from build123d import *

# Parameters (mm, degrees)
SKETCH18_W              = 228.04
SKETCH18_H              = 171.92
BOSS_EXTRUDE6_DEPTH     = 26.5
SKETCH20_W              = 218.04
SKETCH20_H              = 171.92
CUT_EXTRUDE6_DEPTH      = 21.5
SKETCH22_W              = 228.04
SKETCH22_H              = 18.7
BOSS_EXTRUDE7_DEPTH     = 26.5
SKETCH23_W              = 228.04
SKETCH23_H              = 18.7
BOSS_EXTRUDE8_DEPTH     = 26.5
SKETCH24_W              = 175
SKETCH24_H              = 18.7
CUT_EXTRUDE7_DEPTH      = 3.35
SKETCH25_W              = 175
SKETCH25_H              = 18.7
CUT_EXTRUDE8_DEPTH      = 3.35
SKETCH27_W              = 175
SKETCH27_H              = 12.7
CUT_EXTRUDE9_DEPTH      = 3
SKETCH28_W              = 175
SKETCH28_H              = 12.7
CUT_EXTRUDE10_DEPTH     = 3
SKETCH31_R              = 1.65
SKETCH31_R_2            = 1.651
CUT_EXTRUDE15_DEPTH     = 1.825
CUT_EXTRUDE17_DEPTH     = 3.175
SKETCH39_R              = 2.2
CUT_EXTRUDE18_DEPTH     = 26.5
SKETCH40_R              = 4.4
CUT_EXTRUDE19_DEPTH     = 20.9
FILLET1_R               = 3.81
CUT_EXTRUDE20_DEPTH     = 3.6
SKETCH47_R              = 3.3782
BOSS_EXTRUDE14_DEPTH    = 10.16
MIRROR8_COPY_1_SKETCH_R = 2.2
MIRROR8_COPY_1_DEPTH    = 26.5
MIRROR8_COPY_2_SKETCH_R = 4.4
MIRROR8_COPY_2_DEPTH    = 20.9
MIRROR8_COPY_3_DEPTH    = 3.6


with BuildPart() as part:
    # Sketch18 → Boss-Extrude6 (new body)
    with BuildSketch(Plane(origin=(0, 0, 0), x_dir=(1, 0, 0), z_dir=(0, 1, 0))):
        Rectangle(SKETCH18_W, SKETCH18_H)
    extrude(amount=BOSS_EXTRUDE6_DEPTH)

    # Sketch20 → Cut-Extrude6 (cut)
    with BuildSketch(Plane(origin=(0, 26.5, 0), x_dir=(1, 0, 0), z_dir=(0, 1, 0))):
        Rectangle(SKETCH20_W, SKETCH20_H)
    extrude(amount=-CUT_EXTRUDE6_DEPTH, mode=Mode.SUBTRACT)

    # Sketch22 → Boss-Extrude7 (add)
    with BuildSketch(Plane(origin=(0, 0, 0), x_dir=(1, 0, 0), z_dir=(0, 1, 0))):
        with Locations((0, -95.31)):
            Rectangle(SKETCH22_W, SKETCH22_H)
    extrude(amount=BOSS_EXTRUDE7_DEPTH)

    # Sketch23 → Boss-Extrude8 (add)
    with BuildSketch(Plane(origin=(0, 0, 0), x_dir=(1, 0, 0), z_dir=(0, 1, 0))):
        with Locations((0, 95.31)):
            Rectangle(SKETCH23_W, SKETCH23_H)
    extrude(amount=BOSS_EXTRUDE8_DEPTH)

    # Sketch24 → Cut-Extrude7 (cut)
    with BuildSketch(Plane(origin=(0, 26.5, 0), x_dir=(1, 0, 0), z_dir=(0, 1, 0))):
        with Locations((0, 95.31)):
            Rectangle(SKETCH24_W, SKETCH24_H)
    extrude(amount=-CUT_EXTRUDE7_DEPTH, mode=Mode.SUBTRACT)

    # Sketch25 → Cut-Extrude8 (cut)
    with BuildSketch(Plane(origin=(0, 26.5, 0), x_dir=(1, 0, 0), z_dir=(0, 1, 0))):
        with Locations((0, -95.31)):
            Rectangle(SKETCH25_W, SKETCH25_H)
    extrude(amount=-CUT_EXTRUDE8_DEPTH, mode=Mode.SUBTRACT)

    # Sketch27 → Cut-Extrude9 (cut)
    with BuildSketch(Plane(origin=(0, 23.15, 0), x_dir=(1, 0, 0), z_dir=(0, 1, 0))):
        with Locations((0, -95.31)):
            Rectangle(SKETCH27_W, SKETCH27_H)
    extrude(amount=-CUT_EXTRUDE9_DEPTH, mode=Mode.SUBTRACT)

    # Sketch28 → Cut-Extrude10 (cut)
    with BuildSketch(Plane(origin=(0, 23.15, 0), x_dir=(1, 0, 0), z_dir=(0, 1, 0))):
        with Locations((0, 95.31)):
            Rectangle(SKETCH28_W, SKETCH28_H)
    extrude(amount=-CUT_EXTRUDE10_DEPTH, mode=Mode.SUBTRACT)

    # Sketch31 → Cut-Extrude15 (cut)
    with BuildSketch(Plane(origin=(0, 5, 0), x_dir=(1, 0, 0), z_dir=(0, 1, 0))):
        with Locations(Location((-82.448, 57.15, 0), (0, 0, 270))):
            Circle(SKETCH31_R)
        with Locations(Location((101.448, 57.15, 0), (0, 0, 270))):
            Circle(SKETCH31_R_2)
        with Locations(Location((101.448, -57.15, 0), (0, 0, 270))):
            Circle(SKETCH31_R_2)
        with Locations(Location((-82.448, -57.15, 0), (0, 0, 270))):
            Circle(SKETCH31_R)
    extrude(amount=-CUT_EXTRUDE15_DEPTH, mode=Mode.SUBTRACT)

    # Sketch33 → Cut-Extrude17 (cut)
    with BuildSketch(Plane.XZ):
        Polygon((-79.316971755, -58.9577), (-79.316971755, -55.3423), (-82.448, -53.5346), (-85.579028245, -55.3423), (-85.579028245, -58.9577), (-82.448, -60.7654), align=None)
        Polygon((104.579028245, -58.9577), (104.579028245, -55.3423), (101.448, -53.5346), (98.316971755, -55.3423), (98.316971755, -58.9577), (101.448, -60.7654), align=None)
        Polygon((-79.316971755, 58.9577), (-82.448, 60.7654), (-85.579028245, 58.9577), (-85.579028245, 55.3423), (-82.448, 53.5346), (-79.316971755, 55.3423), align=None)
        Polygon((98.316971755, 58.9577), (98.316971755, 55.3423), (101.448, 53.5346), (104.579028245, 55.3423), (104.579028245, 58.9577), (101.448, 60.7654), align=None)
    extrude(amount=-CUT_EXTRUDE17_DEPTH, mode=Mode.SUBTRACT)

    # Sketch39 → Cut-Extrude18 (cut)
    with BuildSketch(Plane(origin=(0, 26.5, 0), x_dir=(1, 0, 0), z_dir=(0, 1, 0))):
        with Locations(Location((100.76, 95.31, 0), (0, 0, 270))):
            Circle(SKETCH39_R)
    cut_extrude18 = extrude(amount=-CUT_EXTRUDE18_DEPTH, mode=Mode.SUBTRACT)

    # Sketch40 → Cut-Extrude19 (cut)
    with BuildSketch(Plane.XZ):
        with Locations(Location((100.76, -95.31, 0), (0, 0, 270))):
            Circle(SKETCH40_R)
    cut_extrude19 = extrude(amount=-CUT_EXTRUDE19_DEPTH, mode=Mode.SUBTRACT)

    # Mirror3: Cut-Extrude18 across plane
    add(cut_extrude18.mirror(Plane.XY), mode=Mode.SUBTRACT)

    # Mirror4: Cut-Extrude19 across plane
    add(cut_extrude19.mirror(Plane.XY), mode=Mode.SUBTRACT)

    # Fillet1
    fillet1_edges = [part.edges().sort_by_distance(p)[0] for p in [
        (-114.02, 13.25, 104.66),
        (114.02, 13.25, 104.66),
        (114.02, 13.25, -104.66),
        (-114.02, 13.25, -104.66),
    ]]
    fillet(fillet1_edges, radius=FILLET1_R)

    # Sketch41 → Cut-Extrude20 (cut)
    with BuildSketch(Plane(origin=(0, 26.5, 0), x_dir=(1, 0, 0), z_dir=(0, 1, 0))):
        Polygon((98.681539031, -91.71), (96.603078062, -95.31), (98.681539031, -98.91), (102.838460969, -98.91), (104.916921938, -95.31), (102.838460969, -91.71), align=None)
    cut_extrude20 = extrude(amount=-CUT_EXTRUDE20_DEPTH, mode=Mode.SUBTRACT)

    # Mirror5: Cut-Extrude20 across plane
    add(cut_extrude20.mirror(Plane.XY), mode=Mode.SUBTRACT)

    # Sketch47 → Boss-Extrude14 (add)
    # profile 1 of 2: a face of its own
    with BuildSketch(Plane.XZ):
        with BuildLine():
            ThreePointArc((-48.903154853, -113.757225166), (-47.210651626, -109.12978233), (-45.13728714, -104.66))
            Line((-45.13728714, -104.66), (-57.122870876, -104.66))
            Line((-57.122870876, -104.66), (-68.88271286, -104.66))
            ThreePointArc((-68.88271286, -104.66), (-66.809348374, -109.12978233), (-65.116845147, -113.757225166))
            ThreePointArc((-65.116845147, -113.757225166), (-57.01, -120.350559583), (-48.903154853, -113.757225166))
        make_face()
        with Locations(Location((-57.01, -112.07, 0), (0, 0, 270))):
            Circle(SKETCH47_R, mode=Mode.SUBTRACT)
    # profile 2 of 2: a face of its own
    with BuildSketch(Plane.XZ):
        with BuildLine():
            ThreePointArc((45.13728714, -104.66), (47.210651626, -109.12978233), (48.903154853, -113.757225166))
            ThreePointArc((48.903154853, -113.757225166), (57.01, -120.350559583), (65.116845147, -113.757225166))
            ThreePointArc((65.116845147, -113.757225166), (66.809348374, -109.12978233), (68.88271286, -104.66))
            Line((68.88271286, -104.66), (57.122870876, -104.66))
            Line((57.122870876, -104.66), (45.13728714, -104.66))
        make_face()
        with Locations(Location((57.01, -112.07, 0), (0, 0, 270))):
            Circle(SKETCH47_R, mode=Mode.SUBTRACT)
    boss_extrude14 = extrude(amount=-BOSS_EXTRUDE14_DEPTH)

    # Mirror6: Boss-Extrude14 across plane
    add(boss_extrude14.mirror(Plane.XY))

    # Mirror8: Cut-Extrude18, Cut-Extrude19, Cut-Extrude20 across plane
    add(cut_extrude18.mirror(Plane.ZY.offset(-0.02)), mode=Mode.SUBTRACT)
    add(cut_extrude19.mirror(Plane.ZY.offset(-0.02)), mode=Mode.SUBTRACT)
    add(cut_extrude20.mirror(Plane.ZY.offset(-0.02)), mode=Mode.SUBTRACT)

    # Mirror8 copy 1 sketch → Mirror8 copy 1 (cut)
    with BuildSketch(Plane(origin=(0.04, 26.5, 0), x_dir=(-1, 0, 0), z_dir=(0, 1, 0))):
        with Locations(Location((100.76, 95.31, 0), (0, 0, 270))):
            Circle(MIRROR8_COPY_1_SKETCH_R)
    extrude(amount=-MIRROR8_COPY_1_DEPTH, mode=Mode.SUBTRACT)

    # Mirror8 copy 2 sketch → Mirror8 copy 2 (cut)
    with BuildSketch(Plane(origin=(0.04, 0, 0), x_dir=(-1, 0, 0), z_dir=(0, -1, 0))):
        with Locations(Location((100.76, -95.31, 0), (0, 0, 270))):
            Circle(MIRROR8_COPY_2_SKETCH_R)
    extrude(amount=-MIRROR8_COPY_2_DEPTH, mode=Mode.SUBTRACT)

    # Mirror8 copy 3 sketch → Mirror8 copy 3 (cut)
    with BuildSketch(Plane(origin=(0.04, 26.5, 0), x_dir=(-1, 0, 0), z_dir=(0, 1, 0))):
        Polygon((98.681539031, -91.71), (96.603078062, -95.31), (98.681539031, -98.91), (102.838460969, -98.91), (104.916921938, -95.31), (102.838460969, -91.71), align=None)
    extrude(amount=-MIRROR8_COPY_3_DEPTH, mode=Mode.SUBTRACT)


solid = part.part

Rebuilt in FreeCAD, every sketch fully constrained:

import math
import FreeCAD as App
import Part
import Sketcher
Q = App.Units.Quantity


def edges_at(feature, points):
    """Names of the edges that pass closest to the given points."""
    edges = feature.Shape.Edges
    near = lambda p: min(range(len(edges)), key=lambda i: edges[i].distToShape(Part.Vertex(*p))[0])
    return sorted({f"Edge{near(p) + 1}" for p in points})

doc = App.newDocument("Part")
params = doc.addObject("Spreadsheet::Sheet", "Params")
for row, (alias, value) in enumerate([
    ("sketch1_width", "228.04 mm"),
    ("sketch1_height", "171.92 mm"),
    ("pad1_length", "26.5 mm"),
    ("sketch2_width", "218.04 mm"),
    ("sketch2_height", "171.92 mm"),
    ("pocket1_length", "21.5 mm"),
    ("sketch3_height", "18.7 mm"),
    ("sketch3_width", "228.04 mm"),
    ("pad2_length", "26.5 mm"),
    ("sketch4_height", "18.7 mm"),
    ("sketch4_width", "228.04 mm"),
    ("pad3_length", "26.5 mm"),
    ("sketch5_width", "175 mm"),
    ("sketch5_height", "18.7 mm"),
    ("pocket2_length", "3.35 mm"),
    ("sketch6_width", "175 mm"),
    ("sketch6_height", "18.7 mm"),
    ("pocket3_length", "3.35 mm"),
    ("sketch7_width", "175 mm"),
    ("sketch7_height", "12.7 mm"),
    ("pocket4_length", "3 mm"),
    ("sketch8_width", "175 mm"),
    ("sketch8_height", "12.7 mm"),
    ("pocket5_length", "3 mm"),
    ("sketch9_diameter", "3.3 mm"),
    ("pocket6_length", "1.825 mm"),
    ("pocket7_length", "3.175 mm"),
    ("sketch11_diameter", "4.4 mm"),
    ("pocket8_length", "26.5 mm"),
    ("sketch12_diameter", "8.8 mm"),
    ("pocket9_length", "20.9 mm"),
    ("fillet_radius", "3.81 mm"),
    ("pocket10_length", "3.6 mm"),
    ("pad4_length", "10.16 mm"),
    ("sketch15_diameter", "4.4 mm"),
    ("pocket11_length", "26.5 mm"),
    ("sketch16_diameter", "8.8 mm"),
    ("pocket12_length", "20.9 mm"),
    ("pocket13_length", "3.6 mm"),
], start=1):
    params.set(f"A{row}", alias)
    params.set(f"B{row}", "=" + value)
    params.setAlias(f"B{row}", alias)

body = doc.addObject("PartDesign::Body", "Body")

# Sketch on XZ plane
sketch1 = body.newObject("Sketcher::SketchObject", "Sketch")
sketch1.AttachmentSupport = (doc.getObject("XZ_Plane"), [""])
sketch1.MapMode = "FlatFace"
sketch1.addGeometry([
    Part.LineSegment(App.Vector(-114, -86, 0), App.Vector(-114, 86, 0)),
    Part.LineSegment(App.Vector(-114, 86, 0), App.Vector(114, 86, 0)),
    Part.LineSegment(App.Vector(114, 86, 0), App.Vector(114, -86, 0)),
    Part.LineSegment(App.Vector(114, -86, 0), App.Vector(-114, -86, 0)),
], False)
sketch1.addConstraint([
    Sketcher.Constraint("Coincident", 0, 2, 1, 1),
    Sketcher.Constraint("Coincident", 1, 2, 2, 1),
    Sketcher.Constraint("Coincident", 2, 2, 3, 1),
    Sketcher.Constraint("Coincident", 3, 2, 0, 1),
    Sketcher.Constraint("Vertical", 0),
    Sketcher.Constraint("Horizontal", 1),
    Sketcher.Constraint("Vertical", 2),
    Sketcher.Constraint("Horizontal", 3),
    Sketcher.Constraint("Symmetric", 0, 2, 2, 2, -1, 1),
    Sketcher.Constraint("DistanceX", 1, 1, 1, 2, 228.04),
    Sketcher.Constraint("DistanceY", 0, 1, 0, 2, 171.92),
])
sketch1.setExpression("Constraints[9]", "Params.sketch1_width")
sketch1.setExpression("Constraints[10]", "Params.sketch1_height")
pad1 = body.newObject("PartDesign::Pad", "Pad")
pad1.Profile = sketch1
pad1.setExpression("Length", "Params.pad1_length")
pad1.Reversed = True

# Sketch on XZ plane
sketch2 = body.newObject("Sketcher::SketchObject", "Sketch001")
sketch2.AttachmentSupport = (doc.getObject("XZ_Plane"), [""])
sketch2.MapMode = "FlatFace"
sketch2.AttachmentOffset = App.Placement(App.Vector(0, 0, -26.5), App.Rotation())
sketch2.addGeometry([
    Part.LineSegment(App.Vector(-109, -86, 0), App.Vector(-109, 86, 0)),
    Part.LineSegment(App.Vector(-109, 86, 0), App.Vector(109, 86, 0)),
    Part.LineSegment(App.Vector(109, 86, 0), App.Vector(109, -86, 0)),
    Part.LineSegment(App.Vector(109, -86, 0), App.Vector(-109, -86, 0)),
], False)
sketch2.addConstraint([
    Sketcher.Constraint("Coincident", 0, 2, 1, 1),
    Sketcher.Constraint("Coincident", 1, 2, 2, 1),
    Sketcher.Constraint("Coincident", 2, 2, 3, 1),
    Sketcher.Constraint("Coincident", 3, 2, 0, 1),
    Sketcher.Constraint("Vertical", 0),
    Sketcher.Constraint("Horizontal", 1),
    Sketcher.Constraint("Vertical", 2),
    Sketcher.Constraint("Horizontal", 3),
    Sketcher.Constraint("Symmetric", 0, 2, 2, 2, -1, 1),
    Sketcher.Constraint("DistanceX", 1, 1, 1, 2, 218.04),
    Sketcher.Constraint("DistanceY", 0, 1, 0, 2, 171.92),
])
sketch2.setExpression("Constraints[9]", "Params.sketch2_width")
sketch2.setExpression("Constraints[10]", "Params.sketch2_height")
pocket1 = body.newObject("PartDesign::Pocket", "Pocket")
pocket1.Profile = sketch2
pocket1.setExpression("Length", "Params.pocket1_length")
pocket1.Reversed = True

# Sketch on XZ plane
sketch3 = body.newObject("Sketcher::SketchObject", "Sketch002")
sketch3.AttachmentSupport = (doc.getObject("XZ_Plane"), [""])
sketch3.MapMode = "FlatFace"
sketch3.addGeometry([
    Part.LineSegment(App.Vector(-114, 86, 0), App.Vector(-114, 105, 0)),
    Part.LineSegment(App.Vector(-114, 105, 0), App.Vector(114, 105, 0)),
    Part.LineSegment(App.Vector(114, 105, 0), App.Vector(114, 86, 0)),
    Part.LineSegment(App.Vector(114, 86, 0), App.Vector(-114, 86, 0)),
], False)
sketch3.addConstraint([
    Sketcher.Constraint("Coincident", 0, 2, 1, 1),
    Sketcher.Constraint("Coincident", 1, 2, 2, 1),
    Sketcher.Constraint("Coincident", 2, 2, 3, 1),
    Sketcher.Constraint("Coincident", 3, 2, 0, 1),
    Sketcher.Constraint("Vertical", 0),
    Sketcher.Constraint("Horizontal", 1),
    Sketcher.Constraint("Vertical", 2),
    Sketcher.Constraint("Horizontal", 3),
    Sketcher.Constraint("DistanceY", 0, 1, 0, 2, 18.7),
    Sketcher.Constraint("DistanceX", 1, 1, 1, 2, 228.04),
    Sketcher.Constraint("DistanceX", 0, 2, -1, 1, 114.02),
    Sketcher.Constraint("DistanceY", -1, 1, 0, 2, 104.66),
])
sketch3.setExpression("Constraints[8]", "Params.sketch3_height")
sketch3.setExpression("Constraints[9]", "Params.sketch3_width")
pad2 = body.newObject("PartDesign::Pad", "Pad001")
pad2.Profile = sketch3
pad2.setExpression("Length", "Params.pad2_length")
pad2.Reversed = True

# Sketch on XZ plane
sketch4 = body.newObject("Sketcher::SketchObject", "Sketch003")
sketch4.AttachmentSupport = (doc.getObject("XZ_Plane"), [""])
sketch4.MapMode = "FlatFace"
sketch4.addGeometry([
    Part.LineSegment(App.Vector(-114, -105, 0), App.Vector(-114, -86, 0)),
    Part.LineSegment(App.Vector(-114, -86, 0), App.Vector(114, -86, 0)),
    Part.LineSegment(App.Vector(114, -86, 0), App.Vector(114, -105, 0)),
    Part.LineSegment(App.Vector(114, -105, 0), App.Vector(-114, -105, 0)),
], False)
sketch4.addConstraint([
    Sketcher.Constraint("Coincident", 0, 2, 1, 1),
    Sketcher.Constraint("Coincident", 1, 2, 2, 1),
    Sketcher.Constraint("Coincident", 2, 2, 3, 1),
    Sketcher.Constraint("Coincident", 3, 2, 0, 1),
    Sketcher.Constraint("Vertical", 0),
    Sketcher.Constraint("Horizontal", 1),
    Sketcher.Constraint("Vertical", 2),
    Sketcher.Constraint("Horizontal", 3),
    Sketcher.Constraint("DistanceY", 0, 1, 0, 2, 18.7),
    Sketcher.Constraint("DistanceX", 1, 1, 1, 2, 228.04),
    Sketcher.Constraint("DistanceX", 0, 2, -1, 1, 114.02),
    Sketcher.Constraint("DistanceY", 0, 2, -1, 1, 85.96),
])
sketch4.setExpression("Constraints[8]", "Params.sketch4_height")
sketch4.setExpression("Constraints[9]", "Params.sketch4_width")
pad3 = body.newObject("PartDesign::Pad", "Pad002")
pad3.Profile = sketch4
pad3.setExpression("Length", "Params.pad3_length")
pad3.Reversed = True

# Sketch on XZ plane
sketch5 = body.newObject("Sketcher::SketchObject", "Sketch004")
sketch5.AttachmentSupport = (doc.getObject("XZ_Plane"), [""])
sketch5.MapMode = "FlatFace"
sketch5.AttachmentOffset = App.Placement(App.Vector(0, 0, -26.5), App.Rotation())
sketch5.addGeometry([
    Part.LineSegment(App.Vector(-88, -105, 0), App.Vector(-88, -86, 0)),
    Part.LineSegment(App.Vector(-88, -86, 0), App.Vector(88, -86, 0)),
    Part.LineSegment(App.Vector(88, -86, 0), App.Vector(88, -105, 0)),
    Part.LineSegment(App.Vector(88, -105, 0), App.Vector(-88, -105, 0)),
], False)
sketch5.addConstraint([
    Sketcher.Constraint("Coincident", 0, 2, 1, 1),
    Sketcher.Constraint("Coincident", 1, 2, 2, 1),
    Sketcher.Constraint("Coincident", 2, 2, 3, 1),
    Sketcher.Constraint("Coincident", 3, 2, 0, 1),
    Sketcher.Constraint("Vertical", 0),
    Sketcher.Constraint("Horizontal", 1),
    Sketcher.Constraint("Vertical", 2),
    Sketcher.Constraint("Horizontal", 3),
    Sketcher.Constraint("DistanceX", 1, 1, 1, 2, 175.0),
    Sketcher.Constraint("DistanceY", 0, 1, 0, 2, 18.7),
    Sketcher.Constraint("DistanceX", 0, 2, -1, 1, 87.5),
    Sketcher.Constraint("DistanceY", 0, 2, -1, 1, 85.96),
])
sketch5.setExpression("Constraints[8]", "Params.sketch5_width")
sketch5.setExpression("Constraints[9]", "Params.sketch5_height")
pocket2 = body.newObject("PartDesign::Pocket", "Pocket001")
pocket2.Profile = sketch5
pocket2.setExpression("Length", "Params.pocket2_length")
pocket2.Reversed = True

# Sketch on XZ plane
sketch6 = body.newObject("Sketcher::SketchObject", "Sketch005")
sketch6.AttachmentSupport = (doc.getObject("XZ_Plane"), [""])
sketch6.MapMode = "FlatFace"
sketch6.AttachmentOffset = App.Placement(App.Vector(0, 0, -26.5), App.Rotation())
sketch6.addGeometry([
    Part.LineSegment(App.Vector(-88, 86, 0), App.Vector(-88, 105, 0)),
    Part.LineSegment(App.Vector(-88, 105, 0), App.Vector(88, 105, 0)),
    Part.LineSegment(App.Vector(88, 105, 0), App.Vector(88, 86, 0)),
    Part.LineSegment(App.Vector(88, 86, 0), App.Vector(-88, 86, 0)),
], False)
sketch6.addConstraint([
    Sketcher.Constraint("Coincident", 0, 2, 1, 1),
    Sketcher.Constraint("Coincident", 1, 2, 2, 1),
    Sketcher.Constraint("Coincident", 2, 2, 3, 1),
    Sketcher.Constraint("Coincident", 3, 2, 0, 1),
    Sketcher.Constraint("Vertical", 0),
    Sketcher.Constraint("Horizontal", 1),
    Sketcher.Constraint("Vertical", 2),
    Sketcher.Constraint("Horizontal", 3),
    Sketcher.Constraint("DistanceX", 1, 1, 1, 2, 175.0),
    Sketcher.Constraint("DistanceY", 0, 1, 0, 2, 18.7),
    Sketcher.Constraint("DistanceX", 0, 2, -1, 1, 87.5),
    Sketcher.Constraint("DistanceY", -1, 1, 0, 2, 104.66),
])
sketch6.setExpression("Constraints[8]", "Params.sketch6_width")
sketch6.setExpression("Constraints[9]", "Params.sketch6_height")
pocket3 = body.newObject("PartDesign::Pocket", "Pocket002")
pocket3.Profile = sketch6
pocket3.setExpression("Length", "Params.pocket3_length")
pocket3.Reversed = True

# Sketch on XZ plane
sketch7 = body.newObject("Sketcher::SketchObject", "Sketch006")
sketch7.AttachmentSupport = (doc.getObject("XZ_Plane"), [""])
sketch7.MapMode = "FlatFace"
sketch7.AttachmentOffset = App.Placement(App.Vector(0, 0, -23.15), App.Rotation())
sketch7.addGeometry([
    Part.LineSegment(App.Vector(-88, 89, 0), App.Vector(-88, 102, 0)),
    Part.LineSegment(App.Vector(-88, 102, 0), App.Vector(88, 102, 0)),
    Part.LineSegment(App.Vector(88, 102, 0), App.Vector(88, 89, 0)),
    Part.LineSegment(App.Vector(88, 89, 0), App.Vector(-88, 89, 0)),
], False)
sketch7.addConstraint([
    Sketcher.Constraint("Coincident", 0, 2, 1, 1),
    Sketcher.Constraint("Coincident", 1, 2, 2, 1),
    Sketcher.Constraint("Coincident", 2, 2, 3, 1),
    Sketcher.Constraint("Coincident", 3, 2, 0, 1),
    Sketcher.Constraint("Vertical", 0),
    Sketcher.Constraint("Horizontal", 1),
    Sketcher.Constraint("Vertical", 2),
    Sketcher.Constraint("Horizontal", 3),
    Sketcher.Constraint("DistanceX", 1, 1, 1, 2, 175.0),
    Sketcher.Constraint("DistanceY", 0, 1, 0, 2, 12.7),
    Sketcher.Constraint("DistanceX", 0, 2, -1, 1, 87.5),
    Sketcher.Constraint("DistanceY", -1, 1, 0, 2, 101.66),
])
sketch7.setExpression("Constraints[8]", "Params.sketch7_width")
sketch7.setExpression("Constraints[9]", "Params.sketch7_height")
pocket4 = body.newObject("PartDesign::Pocket", "Pocket003")
pocket4.Profile = sketch7
pocket4.setExpression("Length", "Params.pocket4_length")
pocket4.Reversed = True

# Sketch on XZ plane
sketch8 = body.newObject("Sketcher::SketchObject", "Sketch007")
sketch8.AttachmentSupport = (doc.getObject("XZ_Plane"), [""])
sketch8.MapMode = "FlatFace"
sketch8.AttachmentOffset = App.Placement(App.Vector(0, 0, -23.15), App.Rotation())
sketch8.addGeometry([
    Part.LineSegment(App.Vector(-88, -102, 0), App.Vector(-88, -89, 0)),
    Part.LineSegment(App.Vector(-88, -89, 0), App.Vector(88, -89, 0)),
    Part.LineSegment(App.Vector(88, -89, 0), App.Vector(88, -102, 0)),
    Part.LineSegment(App.Vector(88, -102, 0), App.Vector(-88, -102, 0)),
], False)
sketch8.addConstraint([
    Sketcher.Constraint("Coincident", 0, 2, 1, 1),
    Sketcher.Constraint("Coincident", 1, 2, 2, 1),
    Sketcher.Constraint("Coincident", 2, 2, 3, 1),
    Sketcher.Constraint("Coincident", 3, 2, 0, 1),
    Sketcher.Constraint("Vertical", 0),
    Sketcher.Constraint("Horizontal", 1),
    Sketcher.Constraint("Vertical", 2),
    Sketcher.Constraint("Horizontal", 3),
    Sketcher.Constraint("DistanceX", 1, 1, 1, 2, 175.0),
    Sketcher.Constraint("DistanceY", 0, 1, 0, 2, 12.7),
    Sketcher.Constraint("DistanceX", 0, 2, -1, 1, 87.5),
    Sketcher.Constraint("DistanceY", 0, 2, -1, 1, 88.96),
])
sketch8.setExpression("Constraints[8]", "Params.sketch8_width")
sketch8.setExpression("Constraints[9]", "Params.sketch8_height")
pocket5 = body.newObject("PartDesign::Pocket", "Pocket004")
pocket5.Profile = sketch8
pocket5.setExpression("Length", "Params.pocket5_length")
pocket5.Reversed = True

# Sketch on XZ plane
sketch9 = body.newObject("Sketcher::SketchObject", "Sketch008")
sketch9.AttachmentSupport = (doc.getObject("XZ_Plane"), [""])
sketch9.MapMode = "FlatFace"
sketch9.AttachmentOffset = App.Placement(App.Vector(0, 0, -5), App.Rotation())
sketch9.addGeometry([
    Part.Circle(App.Vector(-82.4, -57.1, 0), App.Vector(0, 0, 1), 1.6),
    Part.Circle(App.Vector(101.4, -57.1, 0), App.Vector(0, 0, 1), 1.7),
    Part.Circle(App.Vector(101.4, 57.1, 0), App.Vector(0, 0, 1), 1.7),
    Part.Circle(App.Vector(-82.4, 57.1, 0), App.Vector(0, 0, 1), 1.6),
], False)
sketch9.addConstraint([
    Sketcher.Constraint("Equal", 1, 2),
    Sketcher.Constraint("Equal", 0, 3),
    Sketcher.Constraint("Symmetric", 1, 3, 2, 3, -1),
    Sketcher.Constraint("Symmetric", 0, 3, 3, 3, -1),
    Sketcher.Constraint("Horizontal", 0, 3, 1, 3),
    Sketcher.Constraint("Diameter", 0, 3.3),
    Sketcher.Constraint("Diameter", 1, 3.302),
    Sketcher.Constraint("DistanceY", 1, 3, 2, 3, 114.3),
    Sketcher.Constraint("DistanceX", 0, 3, -1, 1, 82.448),
    Sketcher.Constraint("DistanceX", -1, 1, 1, 3, 101.448),
])
sketch9.setExpression("Constraints[5]", "Params.sketch9_diameter")
pocket6 = body.newObject("PartDesign::Pocket", "Pocket005")
pocket6.Profile = sketch9
pocket6.setExpression("Length", "Params.pocket6_length")
pocket6.Reversed = True

# Sketch on XZ plane
sketch10 = body.newObject("Sketcher::SketchObject", "Sketch009")
sketch10.AttachmentSupport = (doc.getObject("XZ_Plane"), [""])
sketch10.MapMode = "FlatFace"
sketch10.addGeometry([
    Part.LineSegment(App.Vector(-79.3, -59, 0), App.Vector(-79.3, -55.3, 0)),  # 0
    Part.LineSegment(App.Vector(-79.3, -55.3, 0), App.Vector(-82.4, -53.5, 0)),  # 1
    Part.LineSegment(App.Vector(-82.4, -53.5, 0), App.Vector(-85.6, -55.3, 0)),  # 2
    Part.LineSegment(App.Vector(-85.6, -55.3, 0), App.Vector(-85.6, -59, 0)),  # 3
    Part.LineSegment(App.Vector(-85.6, -59, 0), App.Vector(-82.4, -60.8, 0)),  # 4
    Part.LineSegment(App.Vector(-82.4, -60.8, 0), App.Vector(-79.3, -59, 0)),  # 5
    Part.LineSegment(App.Vector(104.6, -59, 0), App.Vector(104.6, -55.3, 0)),  # 6
    Part.LineSegment(App.Vector(104.6, -55.3, 0), App.Vector(101.4, -53.5, 0)),  # 7
    Part.LineSegment(App.Vector(101.4, -53.5, 0), App.Vector(98.3, -55.3, 0)),  # 8
    Part.LineSegment(App.Vector(98.3, -55.3, 0), App.Vector(98.3, -59, 0)),  # 9
    Part.LineSegment(App.Vector(98.3, -59, 0), App.Vector(101.4, -60.8, 0)),  # 10
    Part.LineSegment(App.Vector(101.4, -60.8, 0), App.Vector(104.6, -59, 0)),  # 11
    Part.LineSegment(App.Vector(-79.3, 59, 0), App.Vector(-82.4, 60.8, 0)),  # 12
    Part.LineSegment(App.Vector(-82.4, 60.8, 0), App.Vector(-85.6, 59, 0)),  # 13
    Part.LineSegment(App.Vector(-85.6, 59, 0), App.Vector(-85.6, 55.3, 0)),  # 14
    Part.LineSegment(App.Vector(-85.6, 55.3, 0), App.Vector(-82.4, 53.5, 0)),  # 15
    Part.LineSegment(App.Vector(-82.4, 53.5, 0), App.Vector(-79.3, 55.3, 0)),  # 16
    Part.LineSegment(App.Vector(-79.3, 55.3, 0), App.Vector(-79.3, 59, 0)),  # 17
    Part.LineSegment(App.Vector(98.3, 59, 0), App.Vector(98.3, 55.3, 0)),  # 18
    Part.LineSegment(App.Vector(98.3, 55.3, 0), App.Vector(101.4, 53.5, 0)),  # 19
    Part.LineSegment(App.Vector(101.4, 53.5, 0), App.Vector(104.6, 55.3, 0)),  # 20
    Part.LineSegment(App.Vector(104.6, 55.3, 0), App.Vector(104.6, 59, 0)),  # 21
    Part.LineSegment(App.Vector(104.6, 59, 0), App.Vector(101.4, 60.8, 0)),  # 22
    Part.LineSegment(App.Vector(101.4, 60.8, 0), App.Vector(98.3, 59, 0)),  # 23
], False)
sketch10.addConstraint([
    Sketcher.Constraint("Coincident", 0, 2, 1, 1),
    Sketcher.Constraint("Coincident", 1, 2, 2, 1),
    Sketcher.Constraint("Coincident", 2, 2, 3, 1),
    Sketcher.Constraint("Coincident", 3, 2, 4, 1),
    Sketcher.Constraint("Coincident", 4, 2, 5, 1),
    Sketcher.Constraint("Coincident", 5, 2, 0, 1),
    Sketcher.Constraint("Coincident", 6, 2, 7, 1),
    Sketcher.Constraint("Coincident", 7, 2, 8, 1),
    Sketcher.Constraint("Coincident", 8, 2, 9, 1),
    Sketcher.Constraint("Coincident", 9, 2, 10, 1),
    Sketcher.Constraint("Coincident", 10, 2, 11, 1),
    Sketcher.Constraint("Coincident", 11, 2, 6, 1),
    Sketcher.Constraint("Coincident", 12, 2, 13, 1),
    Sketcher.Constraint("Coincident", 13, 2, 14, 1),
    Sketcher.Constraint("Coincident", 14, 2, 15, 1),
    Sketcher.Constraint("Coincident", 15, 2, 16, 1),
    Sketcher.Constraint("Coincident", 16, 2, 17, 1),
    Sketcher.Constraint("Coincident", 17, 2, 12, 1),
    Sketcher.Constraint("Coincident", 18, 2, 19, 1),
    Sketcher.Constraint("Coincident", 19, 2, 20, 1),
    Sketcher.Constraint("Coincident", 20, 2, 21, 1),
    Sketcher.Constraint("Coincident", 21, 2, 22, 1),
    Sketcher.Constraint("Coincident", 22, 2, 23, 1),
    Sketcher.Constraint("Coincident", 23, 2, 18, 1),
    Sketcher.Constraint("Vertical", 0),
    Sketcher.Constraint("Vertical", 3),
    Sketcher.Constraint("Vertical", 6),
    Sketcher.Constraint("Vertical", 9),
    Sketcher.Constraint("Vertical", 14),
    Sketcher.Constraint("Vertical", 17),
    Sketcher.Constraint("Vertical", 18),
    Sketcher.Constraint("Vertical", 21),
    Sketcher.Constraint("Symmetric", 4, 2, 12, 2, -1),
    Sketcher.Constraint("Symmetric", 3, 2, 13, 2, -1),
    Sketcher.Constraint("Symmetric", 1, 2, 15, 2, -1),
    Sketcher.Constraint("Symmetric", 0, 2, 16, 2, -1),
    Sketcher.Constraint("Symmetric", 8, 2, 18, 2, -1),
    Sketcher.Constraint("Symmetric", 7, 2, 19, 2, -1),
    Sketcher.Constraint("Symmetric", 6, 2, 20, 2, -1),
    Sketcher.Constraint("Symmetric", 10, 2, 22, 2, -1),
    Sketcher.Constraint("Parallel", 1, 4),
    Sketcher.Constraint("Parallel", 2, 5),
    Sketcher.Constraint("Parallel", 4, 7),
    Sketcher.Constraint("Parallel", 5, 8),
    Sketcher.Constraint("Parallel", 7, 10),
    Sketcher.Constraint("Parallel", 8, 11),
    Sketcher.Constraint("Parallel", 10, 12),
    Sketcher.Constraint("Parallel", 11, 13),
    Sketcher.Constraint("Parallel", 12, 15),
    Sketcher.Constraint("Parallel", 19, 22),
    Sketcher.Constraint("Parallel", 20, 23),
    Sketcher.Constraint("Horizontal", 0, 2, 2, 2),
    Sketcher.Constraint("Horizontal", 3, 2, 5, 2),
    Sketcher.Constraint("Horizontal", 2, 2, 6, 2),
    Sketcher.Constraint("Horizontal", 1, 2, 7, 2),
    Sketcher.Constraint("Horizontal", 6, 2, 8, 2),
    Sketcher.Constraint("Horizontal", 5, 2, 9, 2),
    Sketcher.Constraint("Horizontal", 4, 2, 10, 2),
    Sketcher.Constraint("Angle", 1, Q("150 deg")),
    Sketcher.Constraint("DistanceY", 1, 2, 12, 2, 114.3),
    Sketcher.Constraint("DistanceY", 0, 1, 0, 2, 3.6154),
    Sketcher.Constraint("DistanceX", 1, 2, -1, 1, 82.448),
    Sketcher.Constraint("DistanceX", -1, 1, 7, 2, 101.448),
    Sketcher.Constraint("Distance", 1, 3.6154),
])
pocket7 = body.newObject("PartDesign::Pocket", "Pocket006")
pocket7.Profile = sketch10
pocket7.setExpression("Length", "Params.pocket7_length")

# Sketch on XZ plane
sketch11 = body.newObject("Sketcher::SketchObject", "Sketch010")
sketch11.AttachmentSupport = (doc.getObject("XZ_Plane"), [""])
sketch11.MapMode = "FlatFace"
sketch11.AttachmentOffset = App.Placement(App.Vector(0, 0, -26.5), App.Rotation())
sketch11.addGeometry(Part.Circle(App.Vector(100.8, -95.3, 0), App.Vector(0, 0, 1), 2.2), False)
sketch11.addConstraint([
    Sketcher.Constraint("Diameter", 0, 4.4),
    Sketcher.Constraint("DistanceX", -1, 1, 0, 3, 100.76),
    Sketcher.Constraint("DistanceY", 0, 3, -1, 1, 95.31),
])
sketch11.setExpression("Constraints[0]", "Params.sketch11_diameter")
pocket8 = body.newObject("PartDesign::Pocket", "Pocket007")
pocket8.Profile = sketch11
pocket8.setExpression("Length", "Params.pocket8_length")
pocket8.Reversed = True

# Sketch on XZ plane
sketch12 = body.newObject("Sketcher::SketchObject", "Sketch011")
sketch12.AttachmentSupport = (doc.getObject("XZ_Plane"), [""])
sketch12.MapMode = "FlatFace"
sketch12.addGeometry(Part.Circle(App.Vector(100.8, -95.3, 0), App.Vector(0, 0, 1), 4.4), False)
sketch12.addConstraint([
    Sketcher.Constraint("Diameter", 0, 8.8),
    Sketcher.Constraint("DistanceX", -1, 1, 0, 3, 100.76),
    Sketcher.Constraint("DistanceY", 0, 3, -1, 1, 95.31),
])
sketch12.setExpression("Constraints[0]", "Params.sketch12_diameter")
pocket9 = body.newObject("PartDesign::Pocket", "Pocket008")
pocket9.Profile = sketch12
pocket9.setExpression("Length", "Params.pocket9_length")
doc.recompute()

mirrored = body.newObject("PartDesign::Mirrored", "Mirrored")
mirrored.Originals = [pocket8]
mirrored.MirrorPlane = (doc.getObject("XY_Plane"), [""])
body.Tip = mirrored
doc.recompute()

mirrored2 = body.newObject("PartDesign::Mirrored", "Mirrored001")
mirrored2.Originals = [pocket9]
mirrored2.MirrorPlane = (doc.getObject("XY_Plane"), [""])
body.Tip = mirrored2
doc.recompute()

fillet = body.newObject("PartDesign::Fillet", "Fillet")
fillet.Base = (mirrored2, edges_at(mirrored2, [
    (-114.02, 13.25, 104.66),
    (114.02, 13.25, 104.66),
    (114.02, 13.25, -104.66),
    (-114.02, 13.25, -104.66),
]))
fillet.setExpression("Radius", "Params.fillet_radius")

# Sketch on XZ plane
sketch13 = body.newObject("Sketcher::SketchObject", "Sketch012")
sketch13.AttachmentSupport = (doc.getObject("XZ_Plane"), [""])
sketch13.MapMode = "FlatFace"
sketch13.AttachmentOffset = App.Placement(App.Vector(0, 0, -26.5), App.Rotation())
sketch13.addGeometry([
    Part.LineSegment(App.Vector(98.7, 91.7, 0), App.Vector(96.6, 95.3, 0)),  # 0
    Part.LineSegment(App.Vector(96.6, 95.3, 0), App.Vector(98.7, 98.9, 0)),  # 1
    Part.LineSegment(App.Vector(98.7, 98.9, 0), App.Vector(102.8, 98.9, 0)),  # 2
    Part.LineSegment(App.Vector(102.8, 98.9, 0), App.Vector(104.9, 95.3, 0)),  # 3
    Part.LineSegment(App.Vector(104.9, 95.3, 0), App.Vector(102.8, 91.7, 0)),  # 4
    Part.LineSegment(App.Vector(102.8, 91.7, 0), App.Vector(98.7, 91.7, 0)),  # 5
], False)
sketch13.addConstraint([
    Sketcher.Constraint("Coincident", 0, 2, 1, 1),
    Sketcher.Constraint("Coincident", 1, 2, 2, 1),
    Sketcher.Constraint("Coincident", 2, 2, 3, 1),
    Sketcher.Constraint("Coincident", 3, 2, 4, 1),
    Sketcher.Constraint("Coincident", 4, 2, 5, 1),
    Sketcher.Constraint("Coincident", 5, 2, 0, 1),
    Sketcher.Constraint("Horizontal", 2),
    Sketcher.Constraint("Horizontal", 5),
    Sketcher.Constraint("Parallel", 0, 3),
    Sketcher.Constraint("Parallel", 1, 4),
    Sketcher.Constraint("Horizontal", 0, 2, 3, 2),
    Sketcher.Constraint("Vertical", 2, 2, 4, 2),
    Sketcher.Constraint("Vertical", 1, 2, 5, 2),
    Sketcher.Constraint("Angle", 0, Q("120 deg")),
    Sketcher.Constraint("DistanceY", 0, 2, 1, 2, 3.6),
    Sketcher.Constraint("DistanceY", -1, 1, 0, 2, 95.31),
    Sketcher.Constraint("DistanceX", 2, 1, 2, 2, 4.156922),
    Sketcher.Constraint("DistanceX", -1, 1, 0, 2, 96.603078),
])
pocket10 = body.newObject("PartDesign::Pocket", "Pocket009")
pocket10.Profile = sketch13
pocket10.setExpression("Length", "Params.pocket10_length")
pocket10.Reversed = True
doc.recompute()

mirrored3 = body.newObject("PartDesign::Mirrored", "Mirrored002")
mirrored3.Originals = [pocket10]
mirrored3.MirrorPlane = (doc.getObject("XY_Plane"), [""])
body.Tip = mirrored3

# Sketch on XZ plane
sketch14 = body.newObject("Sketcher::SketchObject", "Sketch013")
sketch14.AttachmentSupport = (doc.getObject("XZ_Plane"), [""])
sketch14.MapMode = "FlatFace"
sketch14.addGeometry([
    Part.ArcOfCircle(Part.Circle(App.Vector(7.2, -131.7, 0), App.Vector(0, 0, 1), 58.9), math.radians(152.72), math.radians(162.31)),  # 0
    Part.LineSegment(App.Vector(-45.1, -104.7, 0), App.Vector(-68.9, -104.7, 0)),  # 1
    Part.ArcOfCircle(Part.Circle(App.Vector(-121.2, -131.7, 0), App.Vector(0, 0, 1), 58.9), math.radians(17.69), math.radians(27.28)),  # 2
    Part.ArcOfCircle(Part.Circle(App.Vector(-57, -112.1, 0), App.Vector(0, 0, 1), 8.3), math.radians(-168), math.radians(-12)),  # 3
    Part.Circle(App.Vector(-57, -112.1, 0), App.Vector(0, 0, 1), 3.4),  # 4
    Part.ArcOfCircle(Part.Circle(App.Vector(-7.2, -131.7, 0), App.Vector(0, 0, 1), 58.9), math.radians(17.69), math.radians(27.28)),  # 5
    Part.ArcOfCircle(Part.Circle(App.Vector(57, -112.1, 0), App.Vector(0, 0, 1), 8.3), math.radians(-168), math.radians(-12)),  # 6
    Part.ArcOfCircle(Part.Circle(App.Vector(121.2, -131.7, 0), App.Vector(0, 0, 1), 58.9), math.radians(152.72), math.radians(162.31)),  # 7
    Part.LineSegment(App.Vector(68.9, -104.7, 0), App.Vector(45.1, -104.7, 0)),  # 8
    Part.Circle(App.Vector(57, -112.1, 0), App.Vector(0, 0, 1), 3.4),  # 9
], False)
sketch14.addConstraint([
    Sketcher.Constraint("Coincident", 0, 1, 1, 1),
    Sketcher.Constraint("Coincident", 1, 2, 2, 2),
    Sketcher.Constraint("Coincident", 2, 1, 3, 1),
    Sketcher.Constraint("Coincident", 3, 2, 0, 2),
    Sketcher.Constraint("Coincident", 5, 1, 6, 1),
    Sketcher.Constraint("Coincident", 6, 2, 7, 2),
    Sketcher.Constraint("Coincident", 7, 1, 8, 1),
    Sketcher.Constraint("Coincident", 8, 2, 5, 2),
    Sketcher.Constraint("Horizontal", 1),
    Sketcher.Constraint("Horizontal", 8),
    Sketcher.Constraint("Coincident", 4, 3, 3, 3),
    Sketcher.Constraint("Coincident", 9, 3, 6, 3),
    Sketcher.Constraint("Equal", 0, 2),
    Sketcher.Constraint("Equal", 2, 5),
    Sketcher.Constraint("Equal", 3, 6),
    Sketcher.Constraint("Equal", 5, 7),
    Sketcher.Constraint("Equal", 4, 9),
    Sketcher.Constraint("Symmetric", 0, 3, 5, 3, -2),
    Sketcher.Constraint("Symmetric", 3, 3, 6, 3, -2),
    Sketcher.Constraint("Symmetric", 2, 3, 7, 3, -2),
    Sketcher.Constraint("Horizontal", 0, 3, 2, 3),
    Sketcher.Constraint("Horizontal", 2, 1, 3, 2),
    Sketcher.Constraint("Horizontal", 1, 2, 7, 1),
    Sketcher.Constraint("Diameter", 4, 6.7564),
    Sketcher.Constraint("DistanceX", 3, 3, -1, 1, 57.01),
    Sketcher.Constraint("DistanceY", 3, 3, -1, 1, 112.07),
    Sketcher.Constraint("DistanceY", 0, 1, -1, 1, 104.66),
    Sketcher.Constraint("Radius", 3, 8.28056),
    Sketcher.Constraint("Radius", 0, 58.897523),
    Sketcher.Constraint("DistanceX", 1, 2, 1, 1, 23.745426),
    Sketcher.Constraint("DistanceY", 0, 3, -1, 1, 131.65701),
])
pad4 = body.newObject("PartDesign::Pad", "Pad003")
pad4.Profile = sketch14
pad4.setExpression("Length", "Params.pad4_length")
pad4.Reversed = True
doc.recompute()

mirrored4 = body.newObject("PartDesign::Mirrored", "Mirrored003")
mirrored4.Originals = [pad4]
mirrored4.MirrorPlane = (doc.getObject("XY_Plane"), [""])
body.Tip = mirrored4
doc.recompute()

datumplane = body.newObject("PartDesign::Plane", "DatumPlane")
datumplane.AttachmentSupport = (doc.getObject("YZ_Plane"), [""])
datumplane.MapMode = "FlatFace"
datumplane.AttachmentOffset = App.Placement(App.Vector(0, 0, 0.02), App.Rotation())
mirrored5 = body.newObject("PartDesign::Mirrored", "Mirrored004")
mirrored5.Originals = [pocket8, pocket9, pocket10]
mirrored5.MirrorPlane = (datumplane, [""])
body.Tip = mirrored5

# Sketch on XZ plane
sketch15 = body.newObject("Sketcher::SketchObject", "Sketch014")
sketch15.AttachmentSupport = (doc.getObject("XZ_Plane"), [""])
sketch15.MapMode = "FlatFace"
sketch15.AttachmentOffset = App.Placement(App.Vector(0, 0, -26.5), App.Rotation())
sketch15.addGeometry(Part.Circle(App.Vector(-100.7, 95.3, 0), App.Vector(0, 0, 1), 2.2), False)
sketch15.addConstraint([
    Sketcher.Constraint("Diameter", 0, 4.4),
    Sketcher.Constraint("DistanceX", 0, 3, -1, 1, 100.72),
    Sketcher.Constraint("DistanceY", -1, 1, 0, 3, 95.31),
])
sketch15.setExpression("Constraints[0]", "Params.sketch15_diameter")
pocket11 = body.newObject("PartDesign::Pocket", "Pocket010")
pocket11.Profile = sketch15
pocket11.setExpression("Length", "Params.pocket11_length")
pocket11.Reversed = True

# Sketch on XZ plane
sketch16 = body.newObject("Sketcher::SketchObject", "Sketch015")
sketch16.AttachmentSupport = (doc.getObject("XZ_Plane"), [""])
sketch16.MapMode = "FlatFace"
sketch16.addGeometry(Part.Circle(App.Vector(-100.7, 95.3, 0), App.Vector(0, 0, 1), 4.4), False)
sketch16.addConstraint([
    Sketcher.Constraint("Diameter", 0, 8.8),
    Sketcher.Constraint("DistanceX", 0, 3, -1, 1, 100.72),
    Sketcher.Constraint("DistanceY", -1, 1, 0, 3, 95.31),
])
sketch16.setExpression("Constraints[0]", "Params.sketch16_diameter")
pocket12 = body.newObject("PartDesign::Pocket", "Pocket011")
pocket12.Profile = sketch16
pocket12.setExpression("Length", "Params.pocket12_length")

# Sketch on XZ plane
sketch17 = body.newObject("Sketcher::SketchObject", "Sketch016")
sketch17.AttachmentSupport = (doc.getObject("XZ_Plane"), [""])
sketch17.MapMode = "FlatFace"
sketch17.AttachmentOffset = App.Placement(App.Vector(0, 0, -26.5), App.Rotation())
sketch17.addGeometry([
    Part.LineSegment(App.Vector(-98.6, -91.7, 0), App.Vector(-96.6, -95.3, 0)),  # 0
    Part.LineSegment(App.Vector(-96.6, -95.3, 0), App.Vector(-98.6, -98.9, 0)),  # 1
    Part.LineSegment(App.Vector(-98.6, -98.9, 0), App.Vector(-102.8, -98.9, 0)),  # 2
    Part.LineSegment(App.Vector(-102.8, -98.9, 0), App.Vector(-104.9, -95.3, 0)),  # 3
    Part.LineSegment(App.Vector(-104.9, -95.3, 0), App.Vector(-102.8, -91.7, 0)),  # 4
    Part.LineSegment(App.Vector(-102.8, -91.7, 0), App.Vector(-98.6, -91.7, 0)),  # 5
], False)
sketch17.addConstraint([
    Sketcher.Constraint("Coincident", 0, 2, 1, 1),
    Sketcher.Constraint("Coincident", 1, 2, 2, 1),
    Sketcher.Constraint("Coincident", 2, 2, 3, 1),
    Sketcher.Constraint("Coincident", 3, 2, 4, 1),
    Sketcher.Constraint("Coincident", 4, 2, 5, 1),
    Sketcher.Constraint("Coincident", 5, 2, 0, 1),
    Sketcher.Constraint("Horizontal", 2),
    Sketcher.Constraint("Horizontal", 5),
    Sketcher.Constraint("Parallel", 0, 3),
    Sketcher.Constraint("Parallel", 1, 4),
    Sketcher.Constraint("Horizontal", 0, 2, 3, 2),
    Sketcher.Constraint("Vertical", 2, 2, 4, 2),
    Sketcher.Constraint("Vertical", 1, 2, 5, 2),
    Sketcher.Constraint("Angle", 0, Q("-60 deg")),
    Sketcher.Constraint("DistanceY", 1, 2, 0, 2, 3.6),
    Sketcher.Constraint("DistanceY", 0, 2, -1, 1, 95.31),
    Sketcher.Constraint("DistanceX", 2, 2, 2, 1, 4.156922),
    Sketcher.Constraint("DistanceX", 0, 2, -1, 1, 96.563078),
])
pocket13 = body.newObject("PartDesign::Pocket", "Pocket012")
pocket13.Profile = sketch17
pocket13.setExpression("Length", "Params.pocket13_length")
pocket13.Reversed = True

doc.recompute()
